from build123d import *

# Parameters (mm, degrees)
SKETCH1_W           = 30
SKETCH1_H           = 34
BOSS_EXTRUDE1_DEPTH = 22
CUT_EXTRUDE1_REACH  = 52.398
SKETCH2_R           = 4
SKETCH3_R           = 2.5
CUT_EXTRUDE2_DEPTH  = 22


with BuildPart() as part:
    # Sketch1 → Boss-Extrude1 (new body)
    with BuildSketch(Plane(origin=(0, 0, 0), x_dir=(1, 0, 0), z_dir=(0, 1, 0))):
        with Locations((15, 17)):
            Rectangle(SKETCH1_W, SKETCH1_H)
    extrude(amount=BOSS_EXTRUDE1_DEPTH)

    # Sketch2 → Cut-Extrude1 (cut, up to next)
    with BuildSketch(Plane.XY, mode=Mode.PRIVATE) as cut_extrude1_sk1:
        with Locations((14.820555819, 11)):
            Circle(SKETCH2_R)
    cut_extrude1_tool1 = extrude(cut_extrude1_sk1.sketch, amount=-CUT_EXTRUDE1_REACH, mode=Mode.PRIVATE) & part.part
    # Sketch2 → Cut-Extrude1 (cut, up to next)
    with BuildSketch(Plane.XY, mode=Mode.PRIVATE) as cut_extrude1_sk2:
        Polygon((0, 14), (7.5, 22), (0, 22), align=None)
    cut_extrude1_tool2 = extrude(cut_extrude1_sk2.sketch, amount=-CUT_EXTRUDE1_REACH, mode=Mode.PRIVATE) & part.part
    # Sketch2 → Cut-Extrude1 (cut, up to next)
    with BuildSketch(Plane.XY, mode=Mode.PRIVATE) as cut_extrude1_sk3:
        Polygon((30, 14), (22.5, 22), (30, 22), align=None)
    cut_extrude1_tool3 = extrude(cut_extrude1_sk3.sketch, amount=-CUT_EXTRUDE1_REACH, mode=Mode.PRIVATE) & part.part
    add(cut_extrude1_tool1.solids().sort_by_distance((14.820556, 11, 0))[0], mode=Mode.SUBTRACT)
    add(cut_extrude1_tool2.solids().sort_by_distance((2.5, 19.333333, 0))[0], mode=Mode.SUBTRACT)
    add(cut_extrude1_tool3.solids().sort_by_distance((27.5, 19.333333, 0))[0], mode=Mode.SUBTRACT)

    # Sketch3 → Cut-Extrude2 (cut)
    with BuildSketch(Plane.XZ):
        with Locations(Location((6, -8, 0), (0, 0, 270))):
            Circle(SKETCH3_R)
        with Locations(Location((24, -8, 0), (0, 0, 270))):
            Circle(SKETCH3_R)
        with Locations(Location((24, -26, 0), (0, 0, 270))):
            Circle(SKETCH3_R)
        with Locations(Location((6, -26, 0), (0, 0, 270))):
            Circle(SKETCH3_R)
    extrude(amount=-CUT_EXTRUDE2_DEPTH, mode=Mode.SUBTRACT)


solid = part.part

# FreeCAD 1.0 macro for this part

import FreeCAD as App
import Part
import Sketcher

V = App.Vector
Q = App.Units.Quantity

doc = App.newDocument("Part")
body = doc.addObject("PartDesign::Body", "Body")

# Sketch on XZ plane
sketch1 = body.newObject("Sketcher::SketchObject", "Sketch")
sketch1.AttachmentSupport = (doc.getObject("XZ_Plane"), [""])
sketch1.MapMode = "FlatFace"
sketch1.addGeometry([
    Part.LineSegment(V(0, -34, 0), V(0, 0, 0)),
    Part.LineSegment(V(0, 0, 0), V(30, 0, 0)),
    Part.LineSegment(V(30, 0, 0), V(30, -34, 0)),
    Part.LineSegment(V(30, -34, 0), V(0, -34, 0)),
], False)
sketch1.addConstraint([
    Sketcher.Constraint("Coincident", 0, 2, 1, 1),
    Sketcher.Constraint("Coincident", 1, 2, 2, 1),
    Sketcher.Constraint("Coincident", 2, 2, 3, 1),
    Sketcher.Constraint("Coincident", 3, 2, 0, 1),
    Sketcher.Constraint("Vertical", 0),
    Sketcher.Constraint("Horizontal", 1),
    Sketcher.Constraint("Vertical", 2),
    Sketcher.Constraint("Horizontal", 3),
    Sketcher.Constraint("Coincident", 0, 2, -1, 1),
    Sketcher.Constraint("DistanceX", 1, 1, 1, 2, Q("30 mm")),
    Sketcher.Constraint("DistanceY", 0, 1, 0, 2, Q("34 mm")),
])
pad1 = body.newObject("PartDesign::Pad", "Pad")
pad1.Profile = sketch1
pad1.Length = 22
pad1.Reversed = True

# Sketch on XY plane
sketch2 = body.newObject("Sketcher::SketchObject", "Sketch001")
sketch2.AttachmentSupport = (doc.getObject("XY_Plane"), [""])
sketch2.MapMode = "FlatFace"
sketch2.addGeometry(Part.Circle(V(14.820556, 11, 0), V(0, 0, 1), 4), False)
sketch2.addConstraint([
    Sketcher.Constraint("Diameter", 0, Q("8 mm")),
    Sketcher.Constraint("DistanceY", -1, 1, 0, 3, Q("11 mm")),
    Sketcher.Constraint("DistanceX", -1, 1, 0, 3, Q("14.820556 mm")),
])
pocket1 = body.newObject("PartDesign::Pocket", "Pocket")
pocket1.Profile = sketch2
pocket1.Type = "UpToFirst"

# Sketch on XY plane
sketch3 = body.newObject("Sketcher::SketchObject", "Sketch002")
sketch3.AttachmentSupport = (doc.getObject("XY_Plane"), [""])
sketch3.MapMode = "FlatFace"
sketch3.addGeometry([
    Part.LineSegment(V(0, 14, 0), V(7.5, 22, 0)),
    Part.LineSegment(V(7.5, 22, 0), V(0, 22, 0)),
    Part.LineSegment(V(0, 22, 0), V(0, 14, 0)),
], False)
sketch3.addConstraint([
    Sketcher.Constraint("Coincident", 0, 2, 1, 1),
    Sketcher.Constraint("Coincident", 1, 2, 2, 1),
    Sketcher.Constraint("Coincident", 2, 2, 0, 1),
    Sketcher.Constraint("Horizontal", 1),
    Sketcher.Constraint("Vertical", 2),
    Sketcher.Constraint("PointOnObject", 1, 2, -2),
    Sketcher.Constraint("DistanceY", 2, 2, 2, 1, Q("8 mm")),
    Sketcher.Constraint("DistanceX", 1, 2, 1, 1, Q("7.5 mm")),
    Sketcher.Constraint("DistanceY", -1, 1, 0, 2, Q("22 mm")),
])
pocket2 = body.newObject("PartDesign::Pocket", "Pocket001")
pocket2.Profile = sketch3
pocket2.Type = "UpToFirst"

# Sketch on XY plane
sketch4 = body.newObject("Sketcher::SketchObject", "Sketch003")
sketch4.AttachmentSupport = (doc.getObject("XY_Plane"), [""])
sketch4.MapMode = "FlatFace"
sketch4.addGeometry([
    Part.LineSegment(V(22.5, 22, 0), V(30, 14, 0)),
    Part.LineSegment(V(30, 14, 0), V(30, 22, 0)),
    Part.LineSegment(V(30, 22, 0), V(22.5, 22, 0)),
], False)
sketch4.addConstraint([
    Sketcher.Constraint("Coincident", 0, 2, 1, 1),
    Sketcher.Constraint("Coincident", 1, 2, 2, 1),
    Sketcher.Constraint("Coincident", 2, 2, 0, 1),
    Sketcher.Constraint("Vertical", 1),
    Sketcher.Constraint("Horizontal", 2),
    Sketcher.Constraint("DistanceY", 1, 1, 1, 2, Q("8 mm")),
    Sketcher.Constraint("DistanceX", 2, 2, 2, 1, Q("7.5 mm")),
    Sketcher.Constraint("DistanceX", -1, 1, 0, 2, Q("30 mm")),
    Sketcher.Constraint("DistanceY", -1, 1, 0, 2, Q("14 mm")),
])
pocket3 = body.newObject("PartDesign::Pocket", "Pocket002")
pocket3.Profile = sketch4
pocket3.Type = "UpToFirst"

# Sketch on XZ plane
sketch5 = body.newObject("Sketcher::SketchObject", "Sketch004")
sketch5.AttachmentSupport = (doc.getObject("XZ_Plane"), [""])
sketch5.MapMode = "FlatFace"
sketch5.addGeometry([
    Part.Circle(V(6, -8, 0), V(0, 0, 1), 2.5),
    Part.Circle(V(24, -8, 0), V(0, 0, 1), 2.5),
    Part.Circle(V(24, -26, 0), V(0, 0, 1), 2.5),
    Part.Circle(V(6, -26, 0), V(0, 0, 1), 2.5),
], False)
sketch5.addConstraint([
    Sketcher.Constraint("Equal", 0, 1),
    Sketcher.Constraint("Equal", 1, 2),
    Sketcher.Constraint("Equal", 2, 3),
    Sketcher.Constraint("Horizontal", 0, 3, 1, 3),
    Sketcher.Constraint("Horizontal", 2, 3, 3, 3),
    Sketcher.Constraint("Vertical", 1, 3, 2, 3),
    Sketcher.Constraint("Vertical", 0, 3, 3, 3),
    Sketcher.Constraint("Diameter", 0, Q("5 mm")),
    Sketcher.Constraint("DistanceX", -1, 1, 0, 3, Q("6 mm")),
    Sketcher.Constraint("DistanceY", 0, 3, -1, 1, Q("8 mm")),
    Sketcher.Constraint("DistanceX", -1, 1, 1, 3, Q("24 mm")),
    Sketcher.Constraint("DistanceY", 2, 3, -1, 1, Q("26 mm")),
])
pocket4 = body.newObject("PartDesign::Pocket", "Pocket003")
pocket4.Profile = sketch5
pocket4.Length = 22

doc.recompute()
